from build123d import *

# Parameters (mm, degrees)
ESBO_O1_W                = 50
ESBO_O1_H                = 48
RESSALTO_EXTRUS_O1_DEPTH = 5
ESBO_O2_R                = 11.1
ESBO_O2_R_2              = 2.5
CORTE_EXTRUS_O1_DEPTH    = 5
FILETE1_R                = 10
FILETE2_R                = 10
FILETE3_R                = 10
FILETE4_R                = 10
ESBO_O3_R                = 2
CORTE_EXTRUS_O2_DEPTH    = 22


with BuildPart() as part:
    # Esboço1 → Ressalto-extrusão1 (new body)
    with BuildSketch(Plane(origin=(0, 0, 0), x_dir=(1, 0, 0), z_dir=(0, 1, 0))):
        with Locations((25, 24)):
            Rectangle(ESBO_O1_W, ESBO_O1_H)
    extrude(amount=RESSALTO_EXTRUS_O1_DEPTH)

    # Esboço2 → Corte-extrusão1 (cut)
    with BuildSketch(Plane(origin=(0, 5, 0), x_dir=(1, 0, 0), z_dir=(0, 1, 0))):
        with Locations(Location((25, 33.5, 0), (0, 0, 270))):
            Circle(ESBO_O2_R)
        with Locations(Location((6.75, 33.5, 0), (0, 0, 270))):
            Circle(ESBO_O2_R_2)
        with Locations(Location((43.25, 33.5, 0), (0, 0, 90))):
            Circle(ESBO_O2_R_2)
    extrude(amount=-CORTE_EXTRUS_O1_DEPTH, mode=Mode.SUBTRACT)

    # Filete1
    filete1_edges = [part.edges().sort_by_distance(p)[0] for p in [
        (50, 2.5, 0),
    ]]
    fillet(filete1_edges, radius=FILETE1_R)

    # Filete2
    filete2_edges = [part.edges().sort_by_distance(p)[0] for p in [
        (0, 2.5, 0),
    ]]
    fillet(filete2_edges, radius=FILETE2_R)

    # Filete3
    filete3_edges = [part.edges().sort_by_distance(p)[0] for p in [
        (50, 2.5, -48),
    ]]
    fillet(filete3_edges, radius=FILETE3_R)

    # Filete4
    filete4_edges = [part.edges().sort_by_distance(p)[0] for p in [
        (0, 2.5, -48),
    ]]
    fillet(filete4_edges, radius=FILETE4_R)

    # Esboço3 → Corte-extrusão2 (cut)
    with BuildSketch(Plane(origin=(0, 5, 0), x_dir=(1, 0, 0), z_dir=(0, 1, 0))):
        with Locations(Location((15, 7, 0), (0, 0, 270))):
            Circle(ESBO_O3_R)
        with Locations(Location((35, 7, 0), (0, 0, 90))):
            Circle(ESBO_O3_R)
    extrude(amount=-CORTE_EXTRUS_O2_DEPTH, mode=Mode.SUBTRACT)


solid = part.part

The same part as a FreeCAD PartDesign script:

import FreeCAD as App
import Part
import Sketcher
from FreeCAD import Vector
Q = App.Units.Quantity


def edges_at(feature, points):
    """Names of the edges that pass closest to the given points."""
    edges = feature.Shape.Edges
    near = lambda p: min(range(len(edges)), key=lambda i: edges[i].distToShape(Part.Vertex(*p))[0])
    return sorted({f"Edge{near(p) + 1}" for p in points})

doc = App.newDocument("Part")
body = doc.addObject("PartDesign::Body", "Body")

sketch1 = body.newObject("Sketcher::SketchObject", "Sketch")
sketch1.AttachmentSupport = (doc.getObject("XZ_Plane"), [""])
sketch1.MapMode = "FlatFace"
sketch1.addGeometry(Part.LineSegment(Vector(0, -48, 0), Vector(0, 0, 0)), False)
sketch1.addGeometry(Part.LineSegment(Vector(0, 0, 0), Vector(50, 0, 0)), False)
sketch1.addGeometry(Part.LineSegment(Vector(50, 0, 0), Vector(50, -48, 0)), False)
sketch1.addGeometry(Part.LineSegment(Vector(50, -48, 0), Vector(0, -48, 0)), False)
sketch1.addConstraint(Sketcher.Constraint("Coincident", 0, 2, 1, 1))
sketch1.addConstraint(Sketcher.Constraint("Coincident", 1, 2, 2, 1))
sketch1.addConstraint(Sketcher.Constraint("Coincident", 2, 2, 3, 1))
sketch1.addConstraint(Sketcher.Constraint("Coincident", 3, 2, 0, 1))
sketch1.addConstraint(Sketcher.Constraint("Vertical", 0))
sketch1.addConstraint(Sketcher.Constraint("Horizontal", 1))
sketch1.addConstraint(Sketcher.Constraint("Vertical", 2))
sketch1.addConstraint(Sketcher.Constraint("Horizontal", 3))
sketch1.addConstraint(Sketcher.Constraint("Coincident", 0, 2, -1, 1))
sketch1.addConstraint(Sketcher.Constraint("DistanceX", 1, 1, 1, 2, Q("50 mm")))
sketch1.addConstraint(Sketcher.Constraint("DistanceY", 0, 1, 0, 2, Q("48 mm")))
pad1 = body.newObject("PartDesign::Pad", "Pad")
pad1.Profile = sketch1
pad1.Length = 5
pad1.Reversed = True

sketch2 = body.newObject("Sketcher::SketchObject", "Sketch001")
sketch2.AttachmentSupport = (doc.getObject("XZ_Plane"), [""])
sketch2.MapMode = "FlatFace"
sketch2.AttachmentOffset = App.Placement(Vector(0, 0, -5), App.Rotation())
sketch2.addGeometry(Part.Circle(Vector(25, -33.5, 0), Vector(0, 0, 1), 11.1), False)
sketch2.addGeometry(Part.Circle(Vector(6.8, -33.5, 0), Vector(0, 0, 1), 2.5), False)
sketch2.addGeometry(Part.Circle(Vector(43.2, -33.5, 0), Vector(0, 0, 1), 2.5), False)
sketch2.addConstraint(Sketcher.Constraint("Equal", 1, 2))
sketch2.addConstraint(Sketcher.Constraint("Horizontal", 0, 3, 1, 3))
sketch2.addConstraint(Sketcher.Constraint("Horizontal", 1, 3, 2, 3))
sketch2.addConstraint(Sketcher.Constraint("Diameter", 1, Q("5 mm")))
sketch2.addConstraint(Sketcher.Constraint("Diameter", 0, Q("22.2 mm")))
sketch2.addConstraint(Sketcher.Constraint("DistanceX", -1, 1, 0, 3, Q("25 mm")))
sketch2.addConstraint(Sketcher.Constraint("DistanceY", 0, 3, -1, 1, Q("33.5 mm")))
sketch2.addConstraint(Sketcher.Constraint("DistanceX", 1, 3, 2, 3, Q("36.5 mm")))
sketch2.addConstraint(Sketcher.Constraint("DistanceX", -1, 1, 1, 3, Q("6.75 mm")))
pocket1 = body.newObject("PartDesign::Pocket", "Pocket")
pocket1.Profile = sketch2
pocket1.Length = 5
pocket1.Reversed = True
doc.recompute()

fillet = body.newObject("PartDesign::Fillet", "Fillet")
fillet.Base = (pocket1, edges_at(pocket1, [(50, 2.5, 0)]))
fillet.Radius = 10
doc.recompute()

fillet2 = body.newObject("PartDesign::Fillet", "Fillet001")
fillet2.Base = (fillet, edges_at(fillet, [(0, 2.5, 0)]))
fillet2.Radius = 10
doc.recompute()

fillet3 = body.newObject("PartDesign::Fillet", "Fillet002")
fillet3.Base = (fillet2, edges_at(fillet2, [(50, 2.5, -48)]))
fillet3.Radius = 10
doc.recompute()

fillet4 = body.newObject("PartDesign::Fillet", "Fillet003")
fillet4.Base = (fillet3, edges_at(fillet3, [(0, 2.5, -48)]))
fillet4.Radius = 10

sketch3 = body.newObject("Sketcher::SketchObject", "Sketch002")
sketch3.AttachmentSupport = (doc.getObject("XZ_Plane"), [""])
sketch3.MapMode = "FlatFace"
sketch3.AttachmentOffset = App.Placement(Vector(0, 0, -5), App.Rotation())
sketch3.addGeometry(Part.Circle(Vector(15, -7, 0), Vector(0, 0, 1), 2), False)
sketch3.addGeometry(Part.Circle(Vector(35, -7, 0), Vector(0, 0, 1), 2), False)
sketch3.addConstraint(Sketcher.Constraint("Equal", 0, 1))
sketch3.addConstraint(Sketcher.Constraint("Horizontal", 0, 3, 1, 3))
sketch3.addConstraint(Sketcher.Constraint("Diameter", 0, Q("4 mm")))
sketch3.addConstraint(Sketcher.Constraint("DistanceX", -1, 1, 0, 3, Q("15 mm")))
sketch3.addConstraint(Sketcher.Constraint("DistanceY", 0, 3, -1, 1, Q("7 mm")))
sketch3.addConstraint(Sketcher.Constraint("DistanceX", -1, 1, 1, 3, Q("35 mm")))
pocket2 = body.newObject("PartDesign::Pocket", "Pocket001")
pocket2.Profile = sketch3
pocket2.Length = 22
pocket2.Reversed = True

doc.recompute()
